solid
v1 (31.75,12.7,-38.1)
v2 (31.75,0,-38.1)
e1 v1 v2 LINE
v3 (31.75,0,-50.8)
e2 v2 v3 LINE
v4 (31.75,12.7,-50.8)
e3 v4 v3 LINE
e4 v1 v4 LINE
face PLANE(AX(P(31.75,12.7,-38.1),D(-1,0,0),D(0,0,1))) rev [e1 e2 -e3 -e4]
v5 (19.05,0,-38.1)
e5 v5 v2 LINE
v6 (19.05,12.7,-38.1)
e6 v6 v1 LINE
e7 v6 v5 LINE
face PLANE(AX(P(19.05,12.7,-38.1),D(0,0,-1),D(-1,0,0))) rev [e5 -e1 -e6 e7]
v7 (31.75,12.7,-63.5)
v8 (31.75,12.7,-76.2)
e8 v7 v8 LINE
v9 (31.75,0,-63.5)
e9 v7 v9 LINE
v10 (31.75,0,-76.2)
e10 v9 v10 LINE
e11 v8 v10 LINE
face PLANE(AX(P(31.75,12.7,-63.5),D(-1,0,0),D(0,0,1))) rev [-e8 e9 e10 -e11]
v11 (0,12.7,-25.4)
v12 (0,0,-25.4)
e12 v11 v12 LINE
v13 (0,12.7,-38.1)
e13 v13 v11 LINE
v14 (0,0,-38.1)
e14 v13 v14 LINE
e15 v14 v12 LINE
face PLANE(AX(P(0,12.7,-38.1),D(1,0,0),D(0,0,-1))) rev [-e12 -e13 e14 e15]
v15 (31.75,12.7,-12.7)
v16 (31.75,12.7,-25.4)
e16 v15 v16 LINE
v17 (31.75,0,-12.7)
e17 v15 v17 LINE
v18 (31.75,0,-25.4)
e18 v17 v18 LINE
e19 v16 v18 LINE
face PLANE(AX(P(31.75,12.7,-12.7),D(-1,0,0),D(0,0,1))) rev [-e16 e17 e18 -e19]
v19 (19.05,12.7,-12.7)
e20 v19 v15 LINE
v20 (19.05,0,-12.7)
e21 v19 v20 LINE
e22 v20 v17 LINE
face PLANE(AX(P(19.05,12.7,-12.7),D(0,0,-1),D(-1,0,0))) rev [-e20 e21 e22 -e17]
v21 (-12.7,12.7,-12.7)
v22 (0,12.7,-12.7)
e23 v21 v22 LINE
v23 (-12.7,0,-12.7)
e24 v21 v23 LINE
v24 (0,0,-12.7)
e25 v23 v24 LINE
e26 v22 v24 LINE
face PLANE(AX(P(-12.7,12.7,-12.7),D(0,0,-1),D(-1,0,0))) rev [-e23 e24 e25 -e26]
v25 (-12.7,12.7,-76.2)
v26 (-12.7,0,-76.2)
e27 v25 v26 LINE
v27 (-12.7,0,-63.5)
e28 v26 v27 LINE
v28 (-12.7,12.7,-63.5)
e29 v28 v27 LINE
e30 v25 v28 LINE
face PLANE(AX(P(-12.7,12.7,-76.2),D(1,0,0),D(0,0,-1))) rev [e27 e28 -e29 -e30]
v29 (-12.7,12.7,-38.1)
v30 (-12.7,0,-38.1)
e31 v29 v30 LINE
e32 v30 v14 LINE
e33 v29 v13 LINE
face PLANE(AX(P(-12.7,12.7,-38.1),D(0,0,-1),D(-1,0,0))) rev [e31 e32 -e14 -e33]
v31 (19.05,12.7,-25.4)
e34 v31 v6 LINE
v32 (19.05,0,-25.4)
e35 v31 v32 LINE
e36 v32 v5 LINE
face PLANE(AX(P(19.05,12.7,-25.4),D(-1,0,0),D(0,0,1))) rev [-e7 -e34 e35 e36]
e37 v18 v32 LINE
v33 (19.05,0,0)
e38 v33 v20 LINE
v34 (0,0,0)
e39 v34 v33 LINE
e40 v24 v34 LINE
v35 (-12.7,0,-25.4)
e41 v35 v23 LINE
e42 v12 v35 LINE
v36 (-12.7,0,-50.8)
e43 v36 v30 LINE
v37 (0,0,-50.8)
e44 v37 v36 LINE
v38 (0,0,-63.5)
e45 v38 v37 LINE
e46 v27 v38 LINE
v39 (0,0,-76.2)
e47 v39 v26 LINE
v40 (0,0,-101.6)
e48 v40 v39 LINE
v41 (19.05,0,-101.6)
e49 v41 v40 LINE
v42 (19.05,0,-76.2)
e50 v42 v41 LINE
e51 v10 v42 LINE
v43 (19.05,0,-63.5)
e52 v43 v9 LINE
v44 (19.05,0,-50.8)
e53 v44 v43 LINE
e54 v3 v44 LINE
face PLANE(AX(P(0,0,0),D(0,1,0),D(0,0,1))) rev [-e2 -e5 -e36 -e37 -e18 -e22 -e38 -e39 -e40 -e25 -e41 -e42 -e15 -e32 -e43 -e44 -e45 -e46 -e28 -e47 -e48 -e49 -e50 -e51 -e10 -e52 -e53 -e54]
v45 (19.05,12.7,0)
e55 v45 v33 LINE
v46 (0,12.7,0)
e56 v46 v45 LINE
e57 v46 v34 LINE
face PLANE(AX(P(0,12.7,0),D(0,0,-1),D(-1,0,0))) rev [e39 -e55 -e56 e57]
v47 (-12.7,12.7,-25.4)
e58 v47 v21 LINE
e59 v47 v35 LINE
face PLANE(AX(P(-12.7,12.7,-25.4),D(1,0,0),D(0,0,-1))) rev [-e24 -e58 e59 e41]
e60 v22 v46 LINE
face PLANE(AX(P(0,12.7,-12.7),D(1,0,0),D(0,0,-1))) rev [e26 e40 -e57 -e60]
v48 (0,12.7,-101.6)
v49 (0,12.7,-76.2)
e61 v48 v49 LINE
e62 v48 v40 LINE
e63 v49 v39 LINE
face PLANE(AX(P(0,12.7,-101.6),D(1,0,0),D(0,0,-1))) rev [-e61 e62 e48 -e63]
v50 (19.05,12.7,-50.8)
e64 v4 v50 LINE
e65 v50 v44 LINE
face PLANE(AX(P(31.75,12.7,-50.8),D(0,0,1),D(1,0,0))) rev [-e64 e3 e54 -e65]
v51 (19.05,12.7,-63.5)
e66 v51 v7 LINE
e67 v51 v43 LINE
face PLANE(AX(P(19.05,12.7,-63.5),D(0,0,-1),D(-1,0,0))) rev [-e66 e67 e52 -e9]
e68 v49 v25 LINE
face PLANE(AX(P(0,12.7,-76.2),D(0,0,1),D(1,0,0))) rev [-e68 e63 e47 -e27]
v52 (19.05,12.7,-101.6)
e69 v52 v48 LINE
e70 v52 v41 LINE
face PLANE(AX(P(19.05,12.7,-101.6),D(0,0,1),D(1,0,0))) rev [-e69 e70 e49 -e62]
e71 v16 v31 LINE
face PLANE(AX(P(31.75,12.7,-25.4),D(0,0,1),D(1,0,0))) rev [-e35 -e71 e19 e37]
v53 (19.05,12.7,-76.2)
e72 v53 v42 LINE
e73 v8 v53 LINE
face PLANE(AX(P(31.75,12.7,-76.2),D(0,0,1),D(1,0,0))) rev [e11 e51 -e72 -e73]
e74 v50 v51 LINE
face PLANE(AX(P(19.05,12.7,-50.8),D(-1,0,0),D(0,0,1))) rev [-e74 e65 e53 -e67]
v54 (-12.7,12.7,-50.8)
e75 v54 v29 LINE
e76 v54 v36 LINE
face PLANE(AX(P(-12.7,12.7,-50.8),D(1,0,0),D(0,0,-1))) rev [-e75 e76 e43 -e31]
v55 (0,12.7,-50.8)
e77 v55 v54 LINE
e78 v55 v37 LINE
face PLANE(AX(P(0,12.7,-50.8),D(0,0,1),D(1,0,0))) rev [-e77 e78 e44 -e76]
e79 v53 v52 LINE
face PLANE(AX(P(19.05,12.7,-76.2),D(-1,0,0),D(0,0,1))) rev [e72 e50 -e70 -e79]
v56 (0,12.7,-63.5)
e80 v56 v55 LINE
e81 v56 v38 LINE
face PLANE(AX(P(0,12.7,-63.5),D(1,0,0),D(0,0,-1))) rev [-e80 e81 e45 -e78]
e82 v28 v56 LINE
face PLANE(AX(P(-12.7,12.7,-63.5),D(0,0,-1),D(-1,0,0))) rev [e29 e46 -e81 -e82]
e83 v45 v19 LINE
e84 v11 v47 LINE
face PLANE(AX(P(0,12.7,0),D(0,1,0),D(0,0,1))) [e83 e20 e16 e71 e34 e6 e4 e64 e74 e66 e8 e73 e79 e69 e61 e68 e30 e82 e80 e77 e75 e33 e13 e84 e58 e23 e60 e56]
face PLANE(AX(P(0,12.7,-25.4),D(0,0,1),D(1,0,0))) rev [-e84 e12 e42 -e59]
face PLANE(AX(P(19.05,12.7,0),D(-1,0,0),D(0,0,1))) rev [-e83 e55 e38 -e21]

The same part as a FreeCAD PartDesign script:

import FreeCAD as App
import Part
import Sketcher

V = App.Vector
Q = App.Units.Quantity

doc = App.newDocument("Part")
body = doc.addObject("PartDesign::Body", "Body")

# Sketch on XZ plane
sketch1 = body.newObject("Sketcher::SketchObject", "Sketch")
sketch1.AttachmentSupport = (doc.getObject("XZ_Plane"), [""])
sketch1.MapMode = "FlatFace"
sketch1.addGeometry(Part.LineSegment(V(0, 0, 0), V(19, 0, 0)), False)
sketch1.addGeometry(Part.LineSegment(V(19, 0, 0), V(19, -13, 0)), False)
sketch1.addGeometry(Part.LineSegment(V(19, -13, 0), V(32, -13, 0)), False)
sketch1.addGeometry(Part.LineSegment(V(32, -13, 0), V(32, -25, 0)), False)
sketch1.addGeometry(Part.LineSegment(V(32, -25, 0), V(19, -25, 0)), False)
sketch1.addGeometry(Part.LineSegment(V(19, -25, 0), V(19, -38, 0)), False)
sketch1.addGeometry(Part.LineSegment(V(19, -38, 0), V(32, -38, 0)), False)
sketch1.addGeometry(Part.LineSegment(V(32, -38, 0), V(32, -51, 0)), False)
sketch1.addGeometry(Part.LineSegment(V(32, -51, 0), V(19, -51, 0)), False)
sketch1.addGeometry(Part.LineSegment(V(19, -51, 0), V(19, -64, 0)), False)
sketch1.addGeometry(Part.LineSegment(V(19, -64, 0), V(32, -64, 0)), False)
sketch1.addGeometry(Part.LineSegment(V(32, -64, 0), V(32, -76, 0)), False)
sketch1.addGeometry(Part.LineSegment(V(32, -76, 0), V(19, -76, 0)), False)
sketch1.addGeometry(Part.LineSegment(V(19, -76, 0), V(19, -102, 0)), False)
sketch1.addGeometry(Part.LineSegment(V(19, -102, 0), V(0, -102, 0)), False)
sketch1.addGeometry(Part.LineSegment(V(0, -102, 0), V(0, -76, 0)), False)
sketch1.addGeometry(Part.LineSegment(V(0, -76, 0), V(-13, -76, 0)), False)
sketch1.addGeometry(Part.LineSegment(V(-13, -76, 0), V(-13, -64, 0)), False)
sketch1.addGeometry(Part.LineSegment(V(-13, -64, 0), V(0, -64, 0)), False)
sketch1.addGeometry(Part.LineSegment(V(0, -64, 0), V(0, -51, 0)), False)
sketch1.addGeometry(Part.LineSegment(V(0, -51, 0), V(-13, -51, 0)), False)
sketch1.addGeometry(Part.LineSegment(V(-13, -51, 0), V(-13, -38, 0)), False)
sketch1.addGeometry(Part.LineSegment(V(-13, -38, 0), V(0, -38, 0)), False)
sketch1.addGeometry(Part.LineSegment(V(0, -38, 0), V(0, -25, 0)), False)
sketch1.addGeometry(Part.LineSegment(V(0, -25, 0), V(-13, -25, 0)), False)
sketch1.addGeometry(Part.LineSegment(V(-13, -25, 0), V(-13, -13, 0)), False)
sketch1.addGeometry(Part.LineSegment(V(-13, -13, 0), V(0, -13, 0)), False)
sketch1.addGeometry(Part.LineSegment(V(0, -13, 0), V(0, 0, 0)), False)
sketch1.addConstraint(Sketcher.Constraint("Coincident", 0, 2, 1, 1))
sketch1.addConstraint(Sketcher.Constraint("Coincident", 1, 2, 2, 1))
sketch1.addConstraint(Sketcher.Constraint("Coincident", 2, 2, 3, 1))
sketch1.addConstraint(Sketcher.Constraint("Coincident", 3, 2, 4, 1))
sketch1.addConstraint(Sketcher.Constraint("Coincident", 4, 2, 5, 1))
sketch1.addConstraint(Sketcher.Constraint("Coincident", 5, 2, 6, 1))
sketch1.addConstraint(Sketcher.Constraint("Coincident", 6, 2, 7, 1))
sketch1.addConstraint(Sketcher.Constraint("Coincident", 7, 2, 8, 1))
sketch1.addConstraint(Sketcher.Constraint("Coincident", 8, 2, 9, 1))
sketch1.addConstraint(Sketcher.Constraint("Coincident", 9, 2, 10, 1))
sketch1.addConstraint(Sketcher.Constraint("Coincident", 10, 2, 11, 1))
sketch1.addConstraint(Sketcher.Constraint("Coincident", 11, 2, 12, 1))
sketch1.addConstraint(Sketcher.Constraint("Coincident", 12, 2, 13, 1))
sketch1.addConstraint(Sketcher.Constraint("Coincident", 13, 2, 14, 1))
sketch1.addConstraint(Sketcher.Constraint("Coincident", 14, 2, 15, 1))
sketch1.addConstraint(Sketcher.Constraint("Coincident", 15, 2, 16, 1))
sketch1.addConstraint(Sketcher.Constraint("Coincident", 16, 2, 17, 1))
sketch1.addConstraint(Sketcher.Constraint("Coincident", 17, 2, 18, 1))
sketch1.addConstraint(Sketcher.Constraint("Coincident", 18, 2, 19, 1))
sketch1.addConstraint(Sketcher.Constraint("Coincident", 19, 2, 20, 1))
sketch1.addConstraint(Sketcher.Constraint("Coincident", 20, 2, 21, 1))
sketch1.addConstraint(Sketcher.Constraint("Coincident", 21, 2, 22, 1))
sketch1.addConstraint(Sketcher.Constraint("Coincident", 22, 2, 23, 1))
sketch1.addConstraint(Sketcher.Constraint("Coincident", 23, 2, 24, 1))
sketch1.addConstraint(Sketcher.Constraint("Coincident", 24, 2, 25, 1))
sketch1.addConstraint(Sketcher.Constraint("Coincident", 25, 2, 26, 1))
sketch1.addConstraint(Sketcher.Constraint("Coincident", 26, 2, 27, 1))
sketch1.addConstraint(Sketcher.Constraint("Coincident", 27, 2, 0, 1))
sketch1.addConstraint(Sketcher.Constraint("Horizontal", 0))
sketch1.addConstraint(Sketcher.Constraint("Vertical", 1))
sketch1.addConstraint(Sketcher.Constraint("Horizontal", 2))
sketch1.addConstraint(Sketcher.Constraint("Vertical", 3))
sketch1.addConstraint(Sketcher.Constraint("Horizontal", 4))
sketch1.addConstraint(Sketcher.Constraint("Vertical", 5))
sketch1.addConstraint(Sketcher.Constraint("Horizontal", 6))
sketch1.addConstraint(Sketcher.Constraint("Vertical", 7))
sketch1.addConstraint(Sketcher.Constraint("Horizontal", 8))
sketch1.addConstraint(Sketcher.Constraint("Vertical", 9))
sketch1.addConstraint(Sketcher.Constraint("Horizontal", 10))
sketch1.addConstraint(Sketcher.Constraint("Vertical", 11))
sketch1.addConstraint(Sketcher.Constraint("Horizontal", 12))
sketch1.addConstraint(Sketcher.Constraint("Vertical", 13))
sketch1.addConstraint(Sketcher.Constraint("Horizontal", 14))
sketch1.addConstraint(Sketcher.Constraint("Vertical", 15))
sketch1.addConstraint(Sketcher.Constraint("Horizontal", 16))
sketch1.addConstraint(Sketcher.Constraint("Vertical", 17))
sketch1.addConstraint(Sketcher.Constraint("Horizontal", 18))
sketch1.addConstraint(Sketcher.Constraint("Vertical", 19))
sketch1.addConstraint(Sketcher.Constraint("Horizontal", 20))
sketch1.addConstraint(Sketcher.Constraint("Vertical", 21))
sketch1.addConstraint(Sketcher.Constraint("Horizontal", 22))
sketch1.addConstraint(Sketcher.Constraint("Vertical", 23))
sketch1.addConstraint(Sketcher.Constraint("Horizontal", 24))
sketch1.addConstraint(Sketcher.Constraint("Vertical", 25))
sketch1.addConstraint(Sketcher.Constraint("Horizontal", 26))
sketch1.addConstraint(Sketcher.Constraint("Vertical", 27))
sketch1.addConstraint(Sketcher.Constraint("Coincident", 27, 2, -1, 1))
sketch1.addConstraint(Sketcher.Constraint("PointOnObject", 14, 2, -2))
sketch1.addConstraint(Sketcher.Constraint("PointOnObject", 18, 2, -2))
sketch1.addConstraint(Sketcher.Constraint("PointOnObject", 22, 2, -2))
sketch1.addConstraint(Sketcher.Constraint("Horizontal", 12, 2, 15, 2))
sketch1.addConstraint(Sketcher.Constraint("Horizontal", 10, 2, 17, 2))
sketch1.addConstraint(Sketcher.Constraint("Horizontal", 8, 2, 19, 2))
sketch1.addConstraint(Sketcher.Constraint("Horizontal", 6, 2, 21, 2))
sketch1.addConstraint(Sketcher.Constraint("Horizontal", 4, 2, 23, 2))
sketch1.addConstraint(Sketcher.Constraint("Horizontal", 2, 2, 25, 2))
sketch1.addConstraint(Sketcher.Constraint("Vertical", 1, 2, 4, 2))
sketch1.addConstraint(Sketcher.Constraint("Vertical", 3, 2, 6, 2))
sketch1.addConstraint(Sketcher.Constraint("Vertical", 5, 2, 8, 2))
sketch1.addConstraint(Sketcher.Constraint("Vertical", 7, 2, 10, 2))
sketch1.addConstraint(Sketcher.Constraint("Vertical", 9, 2, 12, 2))
sketch1.addConstraint(Sketcher.Constraint("Vertical", 17, 2, 20, 2))
sketch1.addConstraint(Sketcher.Constraint("Vertical", 21, 2, 24, 2))
sketch1.addConstraint(Sketcher.Constraint("Equal", 12, 16))
sketch1.addConstraint(Sketcher.Constraint("Equal", 26, 1))
sketch1.addConstraint(Sketcher.Constraint("Equal", 1, 3))
sketch1.addConstraint(Sketcher.Constraint("Equal", 3, 5))
sketch1.addConstraint(Sketcher.Constraint("Equal", 5, 7))
sketch1.addConstraint(Sketcher.Constraint("Equal", 7, 9))
sketch1.addConstraint(Sketcher.Constraint("Equal", 9, 11))
sketch1.addConstraint(Sketcher.Constraint("DistanceY", 13, 2, 13, 1, Q("1 in")))
sketch1.addConstraint(Sketcher.Constraint("DistanceX", 2, 1, 2, 2, Q("0.5 in")))
sketch1.addConstraint(Sketcher.Constraint("DistanceX", 0, 1, 0, 2, Q("0.75 in")))
pad1 = body.newObject("PartDesign::Pad", "Pad")
pad1.Profile = sketch1
pad1.Length = Q("0.5 in")
pad1.Reversed = True

doc.recompute()
